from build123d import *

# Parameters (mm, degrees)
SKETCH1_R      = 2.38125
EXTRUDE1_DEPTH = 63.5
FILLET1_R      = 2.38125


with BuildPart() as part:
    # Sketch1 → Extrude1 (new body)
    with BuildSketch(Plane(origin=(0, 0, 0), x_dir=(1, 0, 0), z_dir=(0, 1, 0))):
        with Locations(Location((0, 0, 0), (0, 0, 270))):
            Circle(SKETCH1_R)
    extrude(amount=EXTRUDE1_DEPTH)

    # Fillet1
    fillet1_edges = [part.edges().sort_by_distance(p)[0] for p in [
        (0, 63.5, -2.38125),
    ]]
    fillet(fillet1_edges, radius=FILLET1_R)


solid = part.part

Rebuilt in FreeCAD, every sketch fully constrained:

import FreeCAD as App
import Part
import Sketcher
from FreeCAD import Vector
Q = App.Units.Quantity


def edges_at(feature, points):
    """Names of the edges that pass closest to the given points."""
    edges = feature.Shape.Edges
    near = lambda p: min(range(len(edges)), key=lambda i: edges[i].distToShape(Part.Vertex(*p))[0])
    return sorted({f"Edge{near(p) + 1}" for p in points})

doc = App.newDocument("Part")
body = doc.addObject("PartDesign::Body", "Body")

# Sketch on XZ plane
sketch1 = doc.addObject("Sketcher::SketchObject", "Sketch")
body.addObject(sketch1)
sketch1.AttachmentSupport = (doc.XZ_Plane, [""])
sketch1.MapMode = "FlatFace"
sketch1.addGeometry(Part.Circle(Vector(0, 0, 0), Vector(0, 0, 1), 2.4), False)
sketch1.addConstraint([
    Sketcher.Constraint("Coincident", 0, 3, -1, 1),
    Sketcher.Constraint("Diameter", 0, Q("0.1875 in")),
])
pad1 = doc.addObject("PartDesign::Pad", "Pad")
body.addObject(pad1)
pad1.Profile = sketch1
pad1.Length = Q("2.5 in")
pad1.Reversed = True
doc.recompute()

fillet = doc.addObject("PartDesign::Fillet", "Fillet")
body.addObject(fillet)
fillet.Base = (pad1, edges_at(pad1, [(0, 63.5, -2.381)]))
fillet.Radius = Q("0.09375 in")

doc.recompute()
